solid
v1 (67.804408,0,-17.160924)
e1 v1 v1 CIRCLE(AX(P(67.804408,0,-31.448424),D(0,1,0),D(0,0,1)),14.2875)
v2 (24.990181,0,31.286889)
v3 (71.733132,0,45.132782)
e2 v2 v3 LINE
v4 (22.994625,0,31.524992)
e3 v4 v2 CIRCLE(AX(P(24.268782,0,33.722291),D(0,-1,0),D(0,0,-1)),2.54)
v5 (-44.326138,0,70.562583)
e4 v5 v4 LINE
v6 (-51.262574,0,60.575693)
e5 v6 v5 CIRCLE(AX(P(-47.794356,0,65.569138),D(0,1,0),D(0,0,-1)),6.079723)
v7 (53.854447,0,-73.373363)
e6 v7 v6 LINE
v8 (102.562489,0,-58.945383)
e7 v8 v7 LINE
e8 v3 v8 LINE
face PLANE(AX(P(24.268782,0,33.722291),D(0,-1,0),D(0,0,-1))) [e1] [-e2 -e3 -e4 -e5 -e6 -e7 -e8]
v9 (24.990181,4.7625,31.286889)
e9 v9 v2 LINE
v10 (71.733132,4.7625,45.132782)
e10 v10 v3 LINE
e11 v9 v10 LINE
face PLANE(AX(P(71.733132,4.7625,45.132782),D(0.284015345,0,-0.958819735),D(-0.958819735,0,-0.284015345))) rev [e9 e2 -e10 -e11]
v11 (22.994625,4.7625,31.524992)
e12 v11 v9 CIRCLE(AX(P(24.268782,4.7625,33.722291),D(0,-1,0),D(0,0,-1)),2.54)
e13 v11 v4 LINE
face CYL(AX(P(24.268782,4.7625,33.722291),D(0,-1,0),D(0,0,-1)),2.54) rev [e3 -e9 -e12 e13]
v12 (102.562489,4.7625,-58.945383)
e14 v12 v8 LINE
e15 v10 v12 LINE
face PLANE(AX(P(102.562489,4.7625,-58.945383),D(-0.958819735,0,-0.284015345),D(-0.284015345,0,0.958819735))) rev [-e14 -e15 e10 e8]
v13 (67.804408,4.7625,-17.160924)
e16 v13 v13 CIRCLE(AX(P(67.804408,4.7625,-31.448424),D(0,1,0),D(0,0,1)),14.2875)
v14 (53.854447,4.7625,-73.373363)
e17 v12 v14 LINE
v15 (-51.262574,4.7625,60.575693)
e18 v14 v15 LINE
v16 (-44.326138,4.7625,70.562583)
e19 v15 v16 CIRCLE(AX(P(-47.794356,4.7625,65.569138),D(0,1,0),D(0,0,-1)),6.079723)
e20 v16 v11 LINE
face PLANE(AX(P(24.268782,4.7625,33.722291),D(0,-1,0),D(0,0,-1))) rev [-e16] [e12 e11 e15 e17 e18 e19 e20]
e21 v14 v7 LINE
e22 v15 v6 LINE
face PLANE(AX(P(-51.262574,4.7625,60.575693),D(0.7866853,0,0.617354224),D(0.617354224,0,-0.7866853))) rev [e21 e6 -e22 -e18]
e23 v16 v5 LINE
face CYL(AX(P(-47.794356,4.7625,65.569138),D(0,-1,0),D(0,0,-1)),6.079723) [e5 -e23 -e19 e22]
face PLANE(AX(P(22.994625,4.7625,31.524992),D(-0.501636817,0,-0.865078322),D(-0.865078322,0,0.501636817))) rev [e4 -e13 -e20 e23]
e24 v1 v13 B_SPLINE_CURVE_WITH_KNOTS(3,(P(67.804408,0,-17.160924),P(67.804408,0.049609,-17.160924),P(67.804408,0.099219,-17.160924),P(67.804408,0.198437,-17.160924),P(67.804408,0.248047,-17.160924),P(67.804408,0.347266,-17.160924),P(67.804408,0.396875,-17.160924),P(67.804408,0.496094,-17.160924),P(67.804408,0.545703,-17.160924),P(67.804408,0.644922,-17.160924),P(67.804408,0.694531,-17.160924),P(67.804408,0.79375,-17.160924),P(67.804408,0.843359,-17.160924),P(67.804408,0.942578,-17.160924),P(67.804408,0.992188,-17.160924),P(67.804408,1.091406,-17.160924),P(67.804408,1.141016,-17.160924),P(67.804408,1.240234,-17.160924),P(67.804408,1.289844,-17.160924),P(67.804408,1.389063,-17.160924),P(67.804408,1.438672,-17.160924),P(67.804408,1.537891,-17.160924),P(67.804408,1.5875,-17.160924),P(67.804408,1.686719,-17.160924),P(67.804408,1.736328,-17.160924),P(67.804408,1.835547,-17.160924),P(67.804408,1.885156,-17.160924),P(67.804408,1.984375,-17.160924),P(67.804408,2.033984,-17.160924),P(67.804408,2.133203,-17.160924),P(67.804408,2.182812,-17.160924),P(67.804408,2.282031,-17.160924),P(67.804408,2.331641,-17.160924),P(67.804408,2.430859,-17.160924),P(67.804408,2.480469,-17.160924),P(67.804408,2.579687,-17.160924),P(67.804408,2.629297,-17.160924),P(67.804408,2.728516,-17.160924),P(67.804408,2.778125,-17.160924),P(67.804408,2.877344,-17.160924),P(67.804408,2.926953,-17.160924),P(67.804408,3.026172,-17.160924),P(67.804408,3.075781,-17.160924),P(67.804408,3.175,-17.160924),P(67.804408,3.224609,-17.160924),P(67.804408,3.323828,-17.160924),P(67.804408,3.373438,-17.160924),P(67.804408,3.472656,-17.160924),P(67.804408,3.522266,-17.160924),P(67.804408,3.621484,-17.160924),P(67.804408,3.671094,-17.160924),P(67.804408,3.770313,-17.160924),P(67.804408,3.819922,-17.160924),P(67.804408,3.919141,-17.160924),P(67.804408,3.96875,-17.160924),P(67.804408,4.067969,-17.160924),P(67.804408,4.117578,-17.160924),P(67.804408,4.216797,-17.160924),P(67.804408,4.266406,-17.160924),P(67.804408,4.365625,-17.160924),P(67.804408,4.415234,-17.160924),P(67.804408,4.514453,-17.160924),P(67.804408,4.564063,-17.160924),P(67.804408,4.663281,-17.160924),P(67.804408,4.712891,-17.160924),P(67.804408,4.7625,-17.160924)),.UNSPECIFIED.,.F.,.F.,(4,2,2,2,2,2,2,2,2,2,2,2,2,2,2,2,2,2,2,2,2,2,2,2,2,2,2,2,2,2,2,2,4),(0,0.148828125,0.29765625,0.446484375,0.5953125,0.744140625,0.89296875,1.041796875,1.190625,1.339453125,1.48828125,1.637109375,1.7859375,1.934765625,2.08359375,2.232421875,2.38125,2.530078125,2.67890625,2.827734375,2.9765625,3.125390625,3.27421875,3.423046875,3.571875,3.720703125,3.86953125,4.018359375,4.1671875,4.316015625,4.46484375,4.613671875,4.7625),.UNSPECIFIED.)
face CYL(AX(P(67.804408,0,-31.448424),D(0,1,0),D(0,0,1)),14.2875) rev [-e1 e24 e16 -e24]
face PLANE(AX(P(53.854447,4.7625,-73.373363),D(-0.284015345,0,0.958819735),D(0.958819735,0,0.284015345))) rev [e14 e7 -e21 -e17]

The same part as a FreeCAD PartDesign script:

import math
import FreeCAD as App
import Part
import Sketcher
from FreeCAD import Vector
Q = App.Units.Quantity

doc = App.newDocument("Part")
body = doc.addObject("PartDesign::Body", "Body")

# Sketch on XZ plane
sketch1 = body.newObject("Sketcher::SketchObject", "Sketch")
sketch1.AttachmentSupport = (doc.getObject("XZ_Plane"), [""])
sketch1.MapMode = "FlatFace"
sketch1.addGeometry(Part.LineSegment(Vector(102.562489, -58.945383, 0), Vector(53.854447, -73.373363, 0)), False)
sketch1.addGeometry(Part.LineSegment(Vector(53.854447, -73.373363, 0), Vector(-51.262574, 60.575693, 0)), False)
sketch1.addGeometry(Part.ArcOfCircle(Part.Circle(Vector(-47.794356, 65.569138, 0), Vector(0, 0, 1), 6.079723), math.radians(55.217924), math.radians(235.217924)), False)
sketch1.addGeometry(Part.LineSegment(Vector(-44.326138, 70.562583, 0), Vector(22.994625, 31.524992, 0)), False)
sketch1.addGeometry(Part.ArcOfCircle(Part.Circle(Vector(24.268782, 33.722291, 0), Vector(0, 0, 1), 2.54), math.radians(-120.10835), math.radians(-73.5)), False)
sketch1.addGeometry(Part.LineSegment(Vector(24.990181, 31.286889, 0), Vector(71.733132, 45.132782, 0)), False)
sketch1.addGeometry(Part.LineSegment(Vector(71.733132, 45.132782, 0), Vector(102.562489, -58.945383, 0)), False)
sketch1.addConstraint(Sketcher.Constraint("Coincident", 0, 2, 1, 1))
sketch1.addConstraint(Sketcher.Constraint("Coincident", 1, 2, 2, 2))
sketch1.addConstraint(Sketcher.Constraint("Coincident", 2, 1, 3, 1))
sketch1.addConstraint(Sketcher.Constraint("Coincident", 3, 2, 4, 1))
sketch1.addConstraint(Sketcher.Constraint("Coincident", 4, 2, 5, 1))
sketch1.addConstraint(Sketcher.Constraint("Coincident", 5, 2, 6, 1))
sketch1.addConstraint(Sketcher.Constraint("Coincident", 6, 2, 0, 1))
sketch1.addConstraint(Sketcher.Constraint("Radius", 4, Q("0.1 in")))
sketch1.addConstraint(Sketcher.Constraint("Distance", 0, Q("2 in")))
sketch1.addConstraint(Sketcher.Constraint("DistanceX", -1, 1, 3, 2, Q("0.9053002 in")))
sketch1.addConstraint(Sketcher.Constraint("Radius", 2, Q("6.079723 mm")))
sketch1.addConstraint(Sketcher.Constraint("DistanceY", 0, 2, 2, 3, Q("138.942501 mm")))
sketch1.addConstraint(Sketcher.Constraint("DistanceY", 4, 3, 1, 2, Q("26.853402 mm")))
sketch1.addConstraint(Sketcher.Constraint("DistanceY", 3, 2, 4, 3, Q("2.197299 mm")))
sketch1.addConstraint(Sketcher.Constraint("DistanceX", 1, 2, 3, 2, Q("74.257199 mm")))
sketch1.addConstraint(Sketcher.Constraint("DistanceX", 4, 3, 4, 2, Q("0.721399 mm")))
sketch1.addConstraint(Sketcher.Constraint("DistanceY", 5, 2, 2, 1, Q("25.4298 mm")))
sketch1.addConstraint(Sketcher.Constraint("Distance", 1, Q("170.27019 mm")))
sketch1.addConstraint(Sketcher.Constraint("Distance", 5, Q("48.75051 mm")))
sketch1.addConstraint(Sketcher.Constraint("Distance", 6, Q("108.548209 mm")))
sketch1.addConstraint(Sketcher.Constraint("DistanceY", -1, 1, 4, 3, Q("33.722291 mm")))
sketch1.addConstraint(Sketcher.Constraint("DistanceX", -1, 1, 6, 2, Q("102.562489 mm")))
sketch1.addConstraint(Sketcher.Constraint("DistanceX", 2, 3, 4, 3, Q("72.063138 mm")))
pad1 = body.newObject("PartDesign::Pad", "Pad")
pad1.Profile = sketch1
pad1.Length = Q("0.1875 in")
pad1.Reversed = True

# Sketch on XZ plane
sketch2 = body.newObject("Sketcher::SketchObject", "Sketch001")
sketch2.AttachmentSupport = (doc.getObject("XZ_Plane"), [""])
sketch2.MapMode = "FlatFace"
sketch2.AttachmentOffset = App.Placement(Vector(0, 0, -0.1875 * 25.4), App.Rotation())
sketch2.addGeometry(Part.Circle(Vector(68, -31, 0), Vector(0, 0, 1), 14), False)
sketch2.addConstraint(Sketcher.Constraint("Diameter", 0, Q("1.125 in")))
sketch2.addConstraint(Sketcher.Constraint("DistanceX", -1, 1, 0, 3, Q("67.804408 mm")))
sketch2.addConstraint(Sketcher.Constraint("DistanceY", 0, 3, -1, 1, Q("31.448424 mm")))
pocket1 = body.newObject("PartDesign::Pocket", "Pocket")
pocket1.Profile = sketch2
pocket1.Type = "ThroughAll"
pocket1.Reversed = True

doc.recompute()
